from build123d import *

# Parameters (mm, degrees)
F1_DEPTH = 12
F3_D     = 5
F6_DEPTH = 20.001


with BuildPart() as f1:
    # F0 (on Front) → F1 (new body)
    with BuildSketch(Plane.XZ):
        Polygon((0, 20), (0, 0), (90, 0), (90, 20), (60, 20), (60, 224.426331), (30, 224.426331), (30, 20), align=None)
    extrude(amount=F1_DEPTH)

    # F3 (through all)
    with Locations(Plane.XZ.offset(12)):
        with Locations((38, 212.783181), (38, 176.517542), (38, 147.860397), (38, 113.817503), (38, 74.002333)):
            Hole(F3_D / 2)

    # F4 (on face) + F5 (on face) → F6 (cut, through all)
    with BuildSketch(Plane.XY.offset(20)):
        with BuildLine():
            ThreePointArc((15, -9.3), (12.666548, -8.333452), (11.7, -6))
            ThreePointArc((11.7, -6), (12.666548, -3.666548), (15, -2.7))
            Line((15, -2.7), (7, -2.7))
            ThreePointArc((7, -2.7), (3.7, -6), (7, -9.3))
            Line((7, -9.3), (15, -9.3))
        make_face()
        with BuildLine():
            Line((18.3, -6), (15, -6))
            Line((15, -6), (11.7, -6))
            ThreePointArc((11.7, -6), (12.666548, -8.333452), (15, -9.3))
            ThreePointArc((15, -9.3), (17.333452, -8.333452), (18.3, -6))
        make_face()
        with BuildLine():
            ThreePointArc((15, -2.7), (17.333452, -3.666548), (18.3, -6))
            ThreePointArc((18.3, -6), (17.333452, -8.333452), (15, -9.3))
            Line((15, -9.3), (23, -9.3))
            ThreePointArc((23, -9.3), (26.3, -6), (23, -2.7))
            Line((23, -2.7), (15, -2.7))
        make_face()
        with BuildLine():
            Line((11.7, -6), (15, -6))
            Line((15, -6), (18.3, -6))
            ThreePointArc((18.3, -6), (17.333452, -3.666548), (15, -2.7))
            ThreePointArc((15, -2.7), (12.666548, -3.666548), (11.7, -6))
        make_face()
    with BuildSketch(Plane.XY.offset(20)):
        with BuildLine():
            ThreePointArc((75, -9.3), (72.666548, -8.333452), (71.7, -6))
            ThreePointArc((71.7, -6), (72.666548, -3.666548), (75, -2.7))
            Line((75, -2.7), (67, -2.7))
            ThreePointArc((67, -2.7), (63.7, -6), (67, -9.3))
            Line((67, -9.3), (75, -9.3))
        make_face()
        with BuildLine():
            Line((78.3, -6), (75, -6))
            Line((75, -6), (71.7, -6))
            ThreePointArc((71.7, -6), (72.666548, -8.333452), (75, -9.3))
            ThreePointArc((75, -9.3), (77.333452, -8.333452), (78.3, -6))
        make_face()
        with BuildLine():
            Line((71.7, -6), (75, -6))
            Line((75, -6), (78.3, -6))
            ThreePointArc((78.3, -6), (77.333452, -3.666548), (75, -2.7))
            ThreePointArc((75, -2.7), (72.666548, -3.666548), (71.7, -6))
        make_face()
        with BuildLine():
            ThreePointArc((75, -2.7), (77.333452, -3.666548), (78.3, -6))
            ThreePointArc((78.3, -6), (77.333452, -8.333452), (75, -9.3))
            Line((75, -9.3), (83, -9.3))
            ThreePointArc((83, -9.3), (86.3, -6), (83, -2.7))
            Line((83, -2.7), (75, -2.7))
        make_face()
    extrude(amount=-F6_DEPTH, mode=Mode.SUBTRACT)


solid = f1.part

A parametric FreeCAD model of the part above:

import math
import FreeCAD as App
import Part
import Sketcher

V = App.Vector
Q = App.Units.Quantity

doc = App.newDocument("Part")
body = doc.addObject("PartDesign::Body", "Body")

sketch1 = body.newObject("Sketcher::SketchObject", "Sketch")
sketch1.AttachmentSupport = (doc.getObject("XZ_Plane"), [""])
sketch1.MapMode = "FlatFace"
sketch1.addGeometry([
    Part.LineSegment(V(0, 20, 0), V(0, 0, 0)),
    Part.LineSegment(V(0, 0, 0), V(90, 0, 0)),
    Part.LineSegment(V(90, 0, 0), V(90, 20, 0)),
    Part.LineSegment(V(90, 20, 0), V(60, 20, 0)),
    Part.LineSegment(V(60, 20, 0), V(60, 224, 0)),
    Part.LineSegment(V(60, 224, 0), V(30, 224, 0)),
    Part.LineSegment(V(30, 224, 0), V(30, 20, 0)),
    Part.LineSegment(V(30, 20, 0), V(0, 20, 0)),
], False)
sketch1.addConstraint([
    Sketcher.Constraint("Coincident", 0, 2, 1, 1),
    Sketcher.Constraint("Coincident", 1, 2, 2, 1),
    Sketcher.Constraint("Coincident", 2, 2, 3, 1),
    Sketcher.Constraint("Coincident", 3, 2, 4, 1),
    Sketcher.Constraint("Coincident", 4, 2, 5, 1),
    Sketcher.Constraint("Coincident", 5, 2, 6, 1),
    Sketcher.Constraint("Coincident", 6, 2, 7, 1),
    Sketcher.Constraint("Coincident", 7, 2, 0, 1),
    Sketcher.Constraint("Vertical", 0),
    Sketcher.Constraint("Horizontal", 1),
    Sketcher.Constraint("Vertical", 2),
    Sketcher.Constraint("Horizontal", 3),
    Sketcher.Constraint("Vertical", 4),
    Sketcher.Constraint("Horizontal", 5),
    Sketcher.Constraint("Vertical", 6),
    Sketcher.Constraint("Horizontal", 7),
    Sketcher.Constraint("Coincident", 0, 2, -1, 1),
    Sketcher.Constraint("Horizontal", 3, 2, 6, 2),
    Sketcher.Constraint("Equal", 3, 5),
    Sketcher.Constraint("Equal", 5, 7),
    Sketcher.Constraint("DistanceX", 1, 1, 1, 2, Q("90 mm")),
    Sketcher.Constraint("DistanceY", 0, 2, 0, 1, Q("20 mm")),
    Sketcher.Constraint("DistanceY", 4, 1, 4, 2, Q("204.426331 mm")),
])
pad1 = body.newObject("PartDesign::Pad", "Pad")
pad1.Profile = sketch1
pad1.Length = 12

sketch2 = body.newObject("Sketcher::SketchObject", "Sketch001")
sketch2.AttachmentSupport = (doc.getObject("XZ_Plane"), [""])
sketch2.MapMode = "FlatFace"
sketch2.AttachmentOffset = App.Placement(V(0, 0, 12), App.Rotation())
sketch2.addGeometry([
    Part.Circle(V(38, 212.8, 0), V(0, 0, 1), 2.5),
    Part.Circle(V(38, 176.5, 0), V(0, 0, 1), 2.5),
    Part.Circle(V(38, 147.9, 0), V(0, 0, 1), 2.5),
    Part.Circle(V(38, 113.8, 0), V(0, 0, 1), 2.5),
    Part.Circle(V(38, 74, 0), V(0, 0, 1), 2.5),
], False)
sketch2.addConstraint([
    Sketcher.Constraint("Equal", 0, 1),
    Sketcher.Constraint("Equal", 1, 2),
    Sketcher.Constraint("Equal", 2, 3),
    Sketcher.Constraint("Equal", 3, 4),
    Sketcher.Constraint("Vertical", 0, 3, 1, 3),
    Sketcher.Constraint("Vertical", 1, 3, 2, 3),
    Sketcher.Constraint("Vertical", 2, 3, 3, 3),
    Sketcher.Constraint("Vertical", 3, 3, 4, 3),
    Sketcher.Constraint("Diameter", 0, Q("5 mm")),
    Sketcher.Constraint("DistanceX", -1, 1, 0, 3, Q("38 mm")),
    Sketcher.Constraint("DistanceY", -1, 1, 0, 3, Q("212.783181 mm")),
    Sketcher.Constraint("DistanceY", -1, 1, 1, 3, Q("176.517542 mm")),
    Sketcher.Constraint("DistanceY", 3, 3, 1, 3, Q("62.700039 mm")),
    Sketcher.Constraint("DistanceY", 4, 3, 3, 3, Q("39.81517 mm")),
    Sketcher.Constraint("DistanceY", -1, 1, 2, 3, Q("147.860397 mm")),
])
doc.recompute()
hole = body.newObject("PartDesign::Hole", "Hole")
hole.Profile = sketch2
hole.ThreadType = "None"
hole.Diameter = 5
hole.DepthType = "ThroughAll"

sketch3 = body.newObject("Sketcher::SketchObject", "Sketch002")
sketch3.AttachmentSupport = (doc.getObject("XY_Plane"), [""])
sketch3.MapMode = "FlatFace"
sketch3.AttachmentOffset = App.Placement(V(0, 0, 20), App.Rotation())
sketch3.addGeometry([
    Part.LineSegment(V(23, -2.7, 0), V(7, -2.7, 0)),
    Part.ArcOfCircle(Part.Circle(V(7, -6, 0), V(0, 0, 1), 3.3), math.radians(90), math.radians(270)),
    Part.LineSegment(V(7, -9.3, 0), V(23, -9.3, 0)),
    Part.ArcOfCircle(Part.Circle(V(23, -6, 0), V(0, 0, 1), 3.3), math.radians(-90), math.radians(90)),
    Part.ArcOfCircle(Part.Circle(V(67, -6, 0), V(0, 0, 1), 3.3), math.radians(90), math.radians(270)),
    Part.LineSegment(V(67, -9.3, 0), V(83, -9.3, 0)),
    Part.ArcOfCircle(Part.Circle(V(83, -6, 0), V(0, 0, 1), 3.3), math.radians(-90), math.radians(90)),
    Part.LineSegment(V(83, -2.7, 0), V(67, -2.7, 0)),
], False)
sketch3.addConstraint([
    Sketcher.Constraint("Tangent", 0, 2, 1, 1),
    Sketcher.Constraint("Tangent", 1, 2, 2, 1),
    Sketcher.Constraint("Tangent", 2, 2, 3, 1),
    Sketcher.Constraint("Tangent", 3, 2, 0, 1),
    Sketcher.Constraint("Tangent", 4, 2, 5, 1),
    Sketcher.Constraint("Tangent", 5, 2, 6, 1),
    Sketcher.Constraint("Tangent", 6, 2, 7, 1),
    Sketcher.Constraint("Tangent", 7, 2, 4, 1),
    Sketcher.Constraint("Horizontal", 0),
    Sketcher.Constraint("Horizontal", 2),
    Sketcher.Constraint("Horizontal", 5),
    Sketcher.Constraint("Horizontal", 7),
    Sketcher.Constraint("Equal", 3, 4),
    Sketcher.Constraint("Horizontal", 3, 3, 4, 3),
    Sketcher.Constraint("Equal", 2, 5),
    Sketcher.Constraint("Radius", 1, Q("3.3 mm")),
    Sketcher.Constraint("DistanceX", 0, 2, 0, 1, Q("16 mm")),
    Sketcher.Constraint("DistanceX", -1, 1, 1, 3, Q("7 mm")),
    Sketcher.Constraint("DistanceY", 1, 3, -1, 1, Q("6 mm")),
    Sketcher.Constraint("DistanceX", -1, 1, 4, 3, Q("67 mm")),
])
pocket1 = body.newObject("PartDesign::Pocket", "Pocket")
pocket1.Profile = sketch3
pocket1.Type = "ThroughAll"

doc.recompute()
